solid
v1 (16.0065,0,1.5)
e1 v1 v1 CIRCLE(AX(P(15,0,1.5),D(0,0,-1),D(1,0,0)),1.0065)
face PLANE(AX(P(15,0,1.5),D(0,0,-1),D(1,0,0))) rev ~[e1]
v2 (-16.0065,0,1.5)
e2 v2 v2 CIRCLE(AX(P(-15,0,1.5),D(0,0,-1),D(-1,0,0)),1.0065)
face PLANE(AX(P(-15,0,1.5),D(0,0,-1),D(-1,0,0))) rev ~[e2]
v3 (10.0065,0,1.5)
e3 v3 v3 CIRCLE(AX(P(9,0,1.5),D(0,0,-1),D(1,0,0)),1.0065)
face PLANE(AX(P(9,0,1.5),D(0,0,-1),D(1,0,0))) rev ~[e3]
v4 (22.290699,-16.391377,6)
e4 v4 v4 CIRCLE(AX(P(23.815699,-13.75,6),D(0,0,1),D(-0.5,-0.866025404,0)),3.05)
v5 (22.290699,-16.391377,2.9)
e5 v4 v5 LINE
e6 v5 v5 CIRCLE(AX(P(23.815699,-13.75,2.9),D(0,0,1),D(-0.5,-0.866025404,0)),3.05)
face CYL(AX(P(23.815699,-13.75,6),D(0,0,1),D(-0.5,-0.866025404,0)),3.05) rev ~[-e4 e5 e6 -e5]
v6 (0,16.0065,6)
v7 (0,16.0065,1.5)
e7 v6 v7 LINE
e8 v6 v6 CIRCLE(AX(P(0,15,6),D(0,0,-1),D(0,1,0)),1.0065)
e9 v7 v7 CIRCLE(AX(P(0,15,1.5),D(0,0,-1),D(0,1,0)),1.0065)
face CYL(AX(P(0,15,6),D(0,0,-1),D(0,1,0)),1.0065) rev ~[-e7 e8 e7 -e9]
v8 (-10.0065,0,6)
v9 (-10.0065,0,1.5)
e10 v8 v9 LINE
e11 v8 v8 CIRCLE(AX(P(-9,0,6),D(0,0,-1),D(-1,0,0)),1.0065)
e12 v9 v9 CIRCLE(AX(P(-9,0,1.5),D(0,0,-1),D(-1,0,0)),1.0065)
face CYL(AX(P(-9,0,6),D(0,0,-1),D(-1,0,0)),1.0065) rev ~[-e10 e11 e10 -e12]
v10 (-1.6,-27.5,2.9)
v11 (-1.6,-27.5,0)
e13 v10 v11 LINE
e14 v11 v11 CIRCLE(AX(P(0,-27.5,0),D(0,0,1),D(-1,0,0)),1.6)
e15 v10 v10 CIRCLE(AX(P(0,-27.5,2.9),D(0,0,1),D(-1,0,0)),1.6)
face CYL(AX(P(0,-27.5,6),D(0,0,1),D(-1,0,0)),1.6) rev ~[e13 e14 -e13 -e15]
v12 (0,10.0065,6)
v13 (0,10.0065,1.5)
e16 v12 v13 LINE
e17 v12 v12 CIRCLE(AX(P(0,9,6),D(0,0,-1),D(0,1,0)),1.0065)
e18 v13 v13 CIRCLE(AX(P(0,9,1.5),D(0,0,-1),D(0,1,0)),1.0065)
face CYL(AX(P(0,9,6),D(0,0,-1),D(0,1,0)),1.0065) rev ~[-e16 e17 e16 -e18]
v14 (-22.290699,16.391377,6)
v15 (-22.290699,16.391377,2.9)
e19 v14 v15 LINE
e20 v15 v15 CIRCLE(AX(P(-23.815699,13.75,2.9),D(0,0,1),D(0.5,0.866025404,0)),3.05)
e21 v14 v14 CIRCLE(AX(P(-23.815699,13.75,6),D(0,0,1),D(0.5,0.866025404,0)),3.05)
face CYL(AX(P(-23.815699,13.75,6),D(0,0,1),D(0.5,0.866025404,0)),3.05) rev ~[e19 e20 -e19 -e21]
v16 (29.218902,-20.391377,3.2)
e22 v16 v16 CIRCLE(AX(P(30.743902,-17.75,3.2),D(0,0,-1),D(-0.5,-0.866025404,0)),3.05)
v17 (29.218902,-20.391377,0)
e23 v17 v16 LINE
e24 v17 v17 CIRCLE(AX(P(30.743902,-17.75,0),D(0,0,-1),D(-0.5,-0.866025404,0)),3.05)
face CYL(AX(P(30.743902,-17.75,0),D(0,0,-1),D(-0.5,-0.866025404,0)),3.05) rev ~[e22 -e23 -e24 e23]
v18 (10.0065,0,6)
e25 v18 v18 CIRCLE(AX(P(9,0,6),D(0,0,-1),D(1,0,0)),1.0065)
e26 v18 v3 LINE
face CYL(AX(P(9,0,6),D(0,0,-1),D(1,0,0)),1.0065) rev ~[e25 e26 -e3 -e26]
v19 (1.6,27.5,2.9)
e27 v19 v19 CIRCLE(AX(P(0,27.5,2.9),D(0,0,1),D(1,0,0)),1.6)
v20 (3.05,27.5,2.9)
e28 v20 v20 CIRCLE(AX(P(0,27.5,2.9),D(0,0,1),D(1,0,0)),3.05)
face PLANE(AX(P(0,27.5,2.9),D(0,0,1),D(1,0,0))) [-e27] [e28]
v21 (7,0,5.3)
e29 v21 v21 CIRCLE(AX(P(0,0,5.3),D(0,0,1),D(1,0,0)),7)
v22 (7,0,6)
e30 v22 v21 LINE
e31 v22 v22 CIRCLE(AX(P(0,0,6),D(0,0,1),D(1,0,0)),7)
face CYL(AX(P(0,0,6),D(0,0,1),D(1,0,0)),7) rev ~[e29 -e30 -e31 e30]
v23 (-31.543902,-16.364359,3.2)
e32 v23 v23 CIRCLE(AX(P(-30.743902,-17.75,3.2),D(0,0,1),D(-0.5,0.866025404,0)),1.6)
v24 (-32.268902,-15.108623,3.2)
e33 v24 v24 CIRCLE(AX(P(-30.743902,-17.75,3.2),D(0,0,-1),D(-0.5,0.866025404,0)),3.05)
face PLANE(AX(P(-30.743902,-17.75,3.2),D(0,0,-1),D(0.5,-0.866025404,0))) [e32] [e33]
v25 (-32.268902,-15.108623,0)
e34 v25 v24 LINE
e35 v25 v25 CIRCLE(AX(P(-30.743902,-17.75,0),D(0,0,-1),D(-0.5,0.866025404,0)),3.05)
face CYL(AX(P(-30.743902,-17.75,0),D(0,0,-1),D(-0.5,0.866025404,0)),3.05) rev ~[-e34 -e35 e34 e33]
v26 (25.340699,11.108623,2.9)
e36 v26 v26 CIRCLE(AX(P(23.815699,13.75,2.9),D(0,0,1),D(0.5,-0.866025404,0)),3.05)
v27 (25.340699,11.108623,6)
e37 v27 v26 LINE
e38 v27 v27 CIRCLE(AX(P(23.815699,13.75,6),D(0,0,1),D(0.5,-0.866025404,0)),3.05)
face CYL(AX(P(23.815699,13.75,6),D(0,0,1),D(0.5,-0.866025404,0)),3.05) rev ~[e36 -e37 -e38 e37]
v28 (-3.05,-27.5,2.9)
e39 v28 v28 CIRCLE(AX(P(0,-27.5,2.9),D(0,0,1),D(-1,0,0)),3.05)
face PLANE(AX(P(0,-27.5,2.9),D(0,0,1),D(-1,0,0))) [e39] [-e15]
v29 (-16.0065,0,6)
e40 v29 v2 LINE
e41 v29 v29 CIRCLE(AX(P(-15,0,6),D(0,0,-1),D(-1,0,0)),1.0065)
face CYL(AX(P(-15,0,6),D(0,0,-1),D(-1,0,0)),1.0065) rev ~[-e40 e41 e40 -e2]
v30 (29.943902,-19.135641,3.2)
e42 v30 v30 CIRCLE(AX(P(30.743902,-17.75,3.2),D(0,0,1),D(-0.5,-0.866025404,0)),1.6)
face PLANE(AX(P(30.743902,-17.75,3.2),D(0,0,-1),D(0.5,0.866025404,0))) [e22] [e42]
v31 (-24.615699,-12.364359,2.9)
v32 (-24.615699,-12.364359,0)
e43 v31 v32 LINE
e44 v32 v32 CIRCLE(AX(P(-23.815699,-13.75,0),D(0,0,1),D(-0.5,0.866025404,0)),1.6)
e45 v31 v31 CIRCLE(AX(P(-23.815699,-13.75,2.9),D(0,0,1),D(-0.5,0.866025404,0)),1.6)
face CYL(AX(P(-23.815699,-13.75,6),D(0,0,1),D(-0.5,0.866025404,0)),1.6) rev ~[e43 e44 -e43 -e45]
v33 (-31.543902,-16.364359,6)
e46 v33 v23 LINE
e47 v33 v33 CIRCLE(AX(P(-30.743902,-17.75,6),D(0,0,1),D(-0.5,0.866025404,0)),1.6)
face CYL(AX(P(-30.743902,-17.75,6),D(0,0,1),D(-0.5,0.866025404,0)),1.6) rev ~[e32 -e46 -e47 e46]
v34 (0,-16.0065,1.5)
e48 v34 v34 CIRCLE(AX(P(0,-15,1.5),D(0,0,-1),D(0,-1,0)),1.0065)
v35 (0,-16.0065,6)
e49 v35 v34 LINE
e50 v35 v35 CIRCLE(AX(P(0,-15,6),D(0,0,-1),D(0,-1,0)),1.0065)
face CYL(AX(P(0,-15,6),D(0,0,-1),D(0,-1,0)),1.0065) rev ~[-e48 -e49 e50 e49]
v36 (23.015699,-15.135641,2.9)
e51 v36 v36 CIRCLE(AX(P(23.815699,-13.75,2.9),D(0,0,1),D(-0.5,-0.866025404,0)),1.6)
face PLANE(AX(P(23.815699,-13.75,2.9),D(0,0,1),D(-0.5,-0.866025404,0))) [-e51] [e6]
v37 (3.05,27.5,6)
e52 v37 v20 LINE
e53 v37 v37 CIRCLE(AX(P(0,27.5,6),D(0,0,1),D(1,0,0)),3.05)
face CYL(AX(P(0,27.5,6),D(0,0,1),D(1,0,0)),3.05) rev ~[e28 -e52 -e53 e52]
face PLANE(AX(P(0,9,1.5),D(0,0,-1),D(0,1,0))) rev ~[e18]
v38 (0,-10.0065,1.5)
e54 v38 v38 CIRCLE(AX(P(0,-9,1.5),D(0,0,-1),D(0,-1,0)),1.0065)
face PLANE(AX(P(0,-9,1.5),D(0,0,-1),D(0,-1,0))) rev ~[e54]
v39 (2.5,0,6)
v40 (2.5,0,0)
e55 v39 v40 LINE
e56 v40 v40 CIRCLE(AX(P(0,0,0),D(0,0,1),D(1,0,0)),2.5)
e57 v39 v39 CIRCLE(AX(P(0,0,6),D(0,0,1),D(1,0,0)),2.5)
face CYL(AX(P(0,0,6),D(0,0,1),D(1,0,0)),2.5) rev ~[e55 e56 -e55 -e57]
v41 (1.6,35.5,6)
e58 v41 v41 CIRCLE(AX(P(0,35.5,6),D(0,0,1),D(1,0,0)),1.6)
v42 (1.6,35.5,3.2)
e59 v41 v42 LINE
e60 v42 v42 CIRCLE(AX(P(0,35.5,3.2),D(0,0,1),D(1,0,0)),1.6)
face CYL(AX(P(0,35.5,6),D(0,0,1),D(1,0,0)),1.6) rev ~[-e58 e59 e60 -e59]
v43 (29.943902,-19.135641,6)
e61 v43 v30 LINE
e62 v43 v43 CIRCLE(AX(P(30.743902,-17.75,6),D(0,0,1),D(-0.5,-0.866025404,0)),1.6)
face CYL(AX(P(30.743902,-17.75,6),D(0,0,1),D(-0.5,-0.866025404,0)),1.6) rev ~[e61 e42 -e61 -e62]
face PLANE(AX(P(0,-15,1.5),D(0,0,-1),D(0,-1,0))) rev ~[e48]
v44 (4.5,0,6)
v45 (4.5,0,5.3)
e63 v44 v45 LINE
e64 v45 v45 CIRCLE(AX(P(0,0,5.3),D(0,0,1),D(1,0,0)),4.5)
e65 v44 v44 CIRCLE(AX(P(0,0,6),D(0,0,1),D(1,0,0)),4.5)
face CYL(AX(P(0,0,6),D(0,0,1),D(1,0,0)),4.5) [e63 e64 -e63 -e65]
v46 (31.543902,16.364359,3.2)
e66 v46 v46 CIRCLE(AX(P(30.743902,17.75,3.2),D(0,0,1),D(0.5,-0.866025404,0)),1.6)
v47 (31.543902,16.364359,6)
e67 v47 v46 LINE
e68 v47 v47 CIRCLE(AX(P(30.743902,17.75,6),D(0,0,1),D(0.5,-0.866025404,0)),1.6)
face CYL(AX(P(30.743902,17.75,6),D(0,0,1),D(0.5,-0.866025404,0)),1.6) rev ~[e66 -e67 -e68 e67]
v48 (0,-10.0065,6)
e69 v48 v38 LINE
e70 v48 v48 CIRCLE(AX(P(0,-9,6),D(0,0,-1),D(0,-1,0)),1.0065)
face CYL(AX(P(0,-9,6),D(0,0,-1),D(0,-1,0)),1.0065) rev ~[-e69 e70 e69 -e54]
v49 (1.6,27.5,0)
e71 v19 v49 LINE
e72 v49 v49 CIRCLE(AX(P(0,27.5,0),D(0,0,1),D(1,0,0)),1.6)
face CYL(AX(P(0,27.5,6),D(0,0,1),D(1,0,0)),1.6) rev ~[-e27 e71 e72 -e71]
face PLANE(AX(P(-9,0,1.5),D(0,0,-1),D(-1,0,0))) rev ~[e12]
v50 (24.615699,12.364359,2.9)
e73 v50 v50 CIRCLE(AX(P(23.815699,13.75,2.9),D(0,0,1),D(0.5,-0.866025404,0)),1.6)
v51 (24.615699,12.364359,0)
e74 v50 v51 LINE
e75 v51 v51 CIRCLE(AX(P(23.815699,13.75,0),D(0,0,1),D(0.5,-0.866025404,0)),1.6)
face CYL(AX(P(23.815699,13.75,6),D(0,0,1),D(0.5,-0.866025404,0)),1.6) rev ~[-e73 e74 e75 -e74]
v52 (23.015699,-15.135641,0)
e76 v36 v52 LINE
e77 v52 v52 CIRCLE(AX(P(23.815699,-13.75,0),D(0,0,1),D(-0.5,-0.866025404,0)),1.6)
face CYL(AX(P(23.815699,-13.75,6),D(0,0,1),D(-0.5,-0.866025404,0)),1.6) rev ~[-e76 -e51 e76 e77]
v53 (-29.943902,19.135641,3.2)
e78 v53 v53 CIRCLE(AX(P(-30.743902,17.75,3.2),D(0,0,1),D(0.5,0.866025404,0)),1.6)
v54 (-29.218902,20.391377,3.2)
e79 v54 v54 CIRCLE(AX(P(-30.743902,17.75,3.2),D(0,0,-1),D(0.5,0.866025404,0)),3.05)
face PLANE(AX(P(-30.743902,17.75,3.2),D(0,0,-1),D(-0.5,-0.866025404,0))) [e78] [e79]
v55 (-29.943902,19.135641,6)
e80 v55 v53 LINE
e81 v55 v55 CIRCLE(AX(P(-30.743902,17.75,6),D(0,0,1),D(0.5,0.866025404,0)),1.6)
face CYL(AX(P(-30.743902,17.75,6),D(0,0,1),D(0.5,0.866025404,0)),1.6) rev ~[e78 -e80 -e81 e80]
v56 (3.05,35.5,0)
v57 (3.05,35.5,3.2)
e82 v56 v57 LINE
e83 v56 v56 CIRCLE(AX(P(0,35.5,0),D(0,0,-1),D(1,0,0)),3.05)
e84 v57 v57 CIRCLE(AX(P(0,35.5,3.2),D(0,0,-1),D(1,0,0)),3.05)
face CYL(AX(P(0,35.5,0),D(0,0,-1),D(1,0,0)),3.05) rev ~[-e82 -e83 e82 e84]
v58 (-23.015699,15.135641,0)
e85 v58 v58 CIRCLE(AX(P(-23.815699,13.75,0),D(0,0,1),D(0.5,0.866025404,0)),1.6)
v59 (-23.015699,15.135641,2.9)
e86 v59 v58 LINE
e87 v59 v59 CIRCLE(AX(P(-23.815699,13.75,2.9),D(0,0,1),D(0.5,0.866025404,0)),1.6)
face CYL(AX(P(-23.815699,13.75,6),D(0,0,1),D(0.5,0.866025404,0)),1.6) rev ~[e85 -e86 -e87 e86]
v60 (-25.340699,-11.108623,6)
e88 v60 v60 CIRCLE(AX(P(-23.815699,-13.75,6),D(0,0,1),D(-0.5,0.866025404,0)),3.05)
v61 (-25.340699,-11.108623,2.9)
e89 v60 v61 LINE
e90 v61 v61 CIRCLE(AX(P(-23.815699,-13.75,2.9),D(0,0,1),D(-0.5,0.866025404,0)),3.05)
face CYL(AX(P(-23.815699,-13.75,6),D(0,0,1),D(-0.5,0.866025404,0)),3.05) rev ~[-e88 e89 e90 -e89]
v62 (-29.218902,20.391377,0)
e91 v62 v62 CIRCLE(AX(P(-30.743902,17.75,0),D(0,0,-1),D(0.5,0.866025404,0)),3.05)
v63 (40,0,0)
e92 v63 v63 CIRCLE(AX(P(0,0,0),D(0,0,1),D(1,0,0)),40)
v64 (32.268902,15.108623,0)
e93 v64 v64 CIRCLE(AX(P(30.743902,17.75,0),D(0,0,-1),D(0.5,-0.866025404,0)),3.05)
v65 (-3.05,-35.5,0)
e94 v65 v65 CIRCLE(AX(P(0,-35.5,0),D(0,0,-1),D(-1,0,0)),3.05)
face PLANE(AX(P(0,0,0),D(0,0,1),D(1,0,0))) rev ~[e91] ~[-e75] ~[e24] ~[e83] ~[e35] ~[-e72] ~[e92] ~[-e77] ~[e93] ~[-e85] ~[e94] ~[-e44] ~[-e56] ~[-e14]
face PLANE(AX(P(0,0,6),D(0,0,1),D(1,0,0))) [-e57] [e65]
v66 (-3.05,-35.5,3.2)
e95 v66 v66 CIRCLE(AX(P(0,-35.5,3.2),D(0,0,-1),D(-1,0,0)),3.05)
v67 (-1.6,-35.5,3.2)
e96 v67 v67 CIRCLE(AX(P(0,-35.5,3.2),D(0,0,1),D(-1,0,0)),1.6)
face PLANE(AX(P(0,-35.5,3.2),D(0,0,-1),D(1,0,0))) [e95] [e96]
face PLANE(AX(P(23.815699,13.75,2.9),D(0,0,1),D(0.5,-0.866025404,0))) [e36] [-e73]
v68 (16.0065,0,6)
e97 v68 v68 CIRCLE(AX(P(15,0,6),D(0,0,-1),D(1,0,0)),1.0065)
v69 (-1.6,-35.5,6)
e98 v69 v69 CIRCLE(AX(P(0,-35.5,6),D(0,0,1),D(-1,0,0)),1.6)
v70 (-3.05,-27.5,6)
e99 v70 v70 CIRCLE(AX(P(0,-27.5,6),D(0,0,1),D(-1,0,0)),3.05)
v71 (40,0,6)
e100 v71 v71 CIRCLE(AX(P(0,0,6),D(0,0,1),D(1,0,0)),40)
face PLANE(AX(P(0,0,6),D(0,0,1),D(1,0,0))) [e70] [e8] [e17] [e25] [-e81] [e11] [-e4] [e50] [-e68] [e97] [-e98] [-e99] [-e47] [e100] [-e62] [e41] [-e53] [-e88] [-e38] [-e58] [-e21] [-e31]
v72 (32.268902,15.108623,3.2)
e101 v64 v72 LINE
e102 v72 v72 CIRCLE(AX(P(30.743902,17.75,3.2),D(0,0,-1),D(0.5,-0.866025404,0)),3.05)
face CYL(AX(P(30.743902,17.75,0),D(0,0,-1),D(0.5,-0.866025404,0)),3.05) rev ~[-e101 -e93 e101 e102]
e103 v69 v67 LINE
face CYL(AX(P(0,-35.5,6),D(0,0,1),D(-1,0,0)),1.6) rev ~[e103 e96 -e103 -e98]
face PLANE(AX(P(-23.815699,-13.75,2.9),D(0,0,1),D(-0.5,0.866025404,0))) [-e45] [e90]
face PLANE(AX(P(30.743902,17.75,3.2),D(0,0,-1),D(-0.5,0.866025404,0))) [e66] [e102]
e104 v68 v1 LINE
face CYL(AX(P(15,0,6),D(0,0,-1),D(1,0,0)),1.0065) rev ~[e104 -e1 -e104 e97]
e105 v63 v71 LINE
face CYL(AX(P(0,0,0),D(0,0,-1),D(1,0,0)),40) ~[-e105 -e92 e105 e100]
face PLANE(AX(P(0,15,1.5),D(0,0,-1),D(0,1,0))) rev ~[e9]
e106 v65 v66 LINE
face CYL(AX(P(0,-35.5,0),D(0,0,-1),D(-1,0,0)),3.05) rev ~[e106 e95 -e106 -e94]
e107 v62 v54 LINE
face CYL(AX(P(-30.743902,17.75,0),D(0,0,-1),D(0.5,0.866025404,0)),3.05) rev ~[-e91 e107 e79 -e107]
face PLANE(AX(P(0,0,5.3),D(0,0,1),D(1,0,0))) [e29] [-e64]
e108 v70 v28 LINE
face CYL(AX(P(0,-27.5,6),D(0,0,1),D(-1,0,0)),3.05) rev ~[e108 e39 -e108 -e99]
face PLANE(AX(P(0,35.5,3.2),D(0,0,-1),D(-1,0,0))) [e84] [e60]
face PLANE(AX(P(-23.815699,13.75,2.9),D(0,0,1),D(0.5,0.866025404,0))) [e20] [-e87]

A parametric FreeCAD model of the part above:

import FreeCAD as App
import Part
import Sketcher
from FreeCAD import Vector
Q = App.Units.Quantity

doc = App.newDocument("Part")
params = doc.addObject("Spreadsheet::Sheet", "Params")
for row, (alias, value) in enumerate([
    ("sketch1_diameter", "80 mm"),
    ("pad1_length", "6 mm"),
    ("sketch2_diameter", "3.2 mm"),
    ("sketch3_diameter", "6.1 mm"),
    ("pocket2_length", "3.2 mm"),
    ("sketch4_diameter", "6.1 mm"),
    ("pocket3_length", "3.1 mm"),
    ("sketch5_diameter", "5 mm"),
    ("sketch6_diameter", "14 mm"),
    ("sketch6_diameter2", "9 mm"),
    ("pocket5_length", "0.7 mm"),
    ("hole_diameter", "2.013 mm"),
    ("hole_depth", "4.5 mm"),
    ("hole2_diameter", "2.013 mm"),
    ("hole2_depth", "4.5 mm"),
], start=1):
    params.set(f"A{row}", alias)
    params.set(f"B{row}", "=" + value)
    params.setAlias(f"B{row}", alias)

body = doc.addObject("PartDesign::Body", "Body")

sketch1 = body.newObject("Sketcher::SketchObject", "Sketch")
sketch1.AttachmentSupport = (doc.getObject("XY_Plane"), [""])
sketch1.MapMode = "FlatFace"
sketch1.addGeometry(Part.Circle(Vector(0, 0, 0), Vector(0, 0, 1), 40), False)
sketch1.addConstraint(Sketcher.Constraint("Coincident", 0, 3, -1, 1))
sketch1.addConstraint(Sketcher.Constraint("Diameter", 0, Q("80 mm")))
sketch1.setExpression("Constraints[1]", "Params.sketch1_diameter")
pad1 = body.newObject("PartDesign::Pad", "Pad")
pad1.Profile = sketch1
pad1.setExpression("Length", "Params.pad1_length")

sketch2 = body.newObject("Sketcher::SketchObject", "Sketch001")
sketch2.AttachmentSupport = (doc.getObject("XY_Plane"), [""])
sketch2.MapMode = "FlatFace"
sketch2.AttachmentOffset = App.Placement(Vector(0, 0, 6), App.Rotation())
sketch2.addGeometry(Part.Circle(Vector(0, 27.5, 0), Vector(0, 0, 1), 1.6), False)
sketch2.addGeometry(Part.Circle(Vector(0, 35.5, 0), Vector(0, 0, 1), 1.6), False)
sketch2.addConstraint(Sketcher.Constraint("Equal", 0, 1))
sketch2.addConstraint(Sketcher.Constraint("PointOnObject", 0, 3, -2))
sketch2.addConstraint(Sketcher.Constraint("PointOnObject", 1, 3, -2))
sketch2.addConstraint(Sketcher.Constraint("Diameter", 0, Q("3.2 mm")))
sketch2.addConstraint(Sketcher.Constraint("DistanceY", 0, 3, 1, 3, Q("8 mm")))
sketch2.addConstraint(Sketcher.Constraint("DistanceY", -1, 1, 0, 3, Q("27.5 mm")))
sketch2.setExpression("Constraints[3]", "Params.sketch2_diameter")
pocket1 = body.newObject("PartDesign::Pocket", "Pocket")
pocket1.Profile = sketch2
pocket1.Type = "UpToFirst"

sketch3 = body.newObject("Sketcher::SketchObject", "Sketch002")
sketch3.AttachmentSupport = (doc.getObject("XY_Plane"), [""])
sketch3.MapMode = "FlatFace"
sketch3.addGeometry(Part.Circle(Vector(0, 35.5, 0), Vector(0, 0, 1), 3), False)
sketch3.addConstraint(Sketcher.Constraint("PointOnObject", 0, 3, -2))
sketch3.addConstraint(Sketcher.Constraint("Diameter", 0, Q("6.1 mm")))
sketch3.addConstraint(Sketcher.Constraint("DistanceY", -1, 1, 0, 3, Q("35.5 mm")))
sketch3.setExpression("Constraints[1]", "Params.sketch3_diameter")
pocket2 = body.newObject("PartDesign::Pocket", "Pocket001")
pocket2.Profile = sketch3
pocket2.setExpression("Length", "Params.pocket2_length")
pocket2.Reversed = True

sketch4 = body.newObject("Sketcher::SketchObject", "Sketch003")
sketch4.AttachmentSupport = (doc.getObject("XY_Plane"), [""])
sketch4.MapMode = "FlatFace"
sketch4.AttachmentOffset = App.Placement(Vector(0, 0, 6), App.Rotation())
sketch4.addGeometry(Part.Circle(Vector(0, 27.5, 0), Vector(0, 0, 1), 3), False)
sketch4.addConstraint(Sketcher.Constraint("PointOnObject", 0, 3, -2))
sketch4.addConstraint(Sketcher.Constraint("Diameter", 0, Q("6.1 mm")))
sketch4.addConstraint(Sketcher.Constraint("DistanceY", -1, 1, 0, 3, Q("27.5 mm")))
sketch4.setExpression("Constraints[1]", "Params.sketch4_diameter")
pocket3 = body.newObject("PartDesign::Pocket", "Pocket002")
pocket3.Profile = sketch4
pocket3.setExpression("Length", "Params.pocket3_length")
doc.recompute()

polarpattern = body.newObject("PartDesign::PolarPattern", "PolarPattern")
polarpattern.Originals = [pocket1, pocket2, pocket3]
polarpattern.Axis = (doc.getObject("Z_Axis"), [""])
polarpattern.Angle = 360
polarpattern.Occurrences = 6
body.Tip = polarpattern

sketch5 = body.newObject("Sketcher::SketchObject", "Sketch004")
sketch5.AttachmentSupport = (doc.getObject("XY_Plane"), [""])
sketch5.MapMode = "FlatFace"
sketch5.AttachmentOffset = App.Placement(Vector(0, 0, 6), App.Rotation())
sketch5.addGeometry(Part.Circle(Vector(0, 0, 0), Vector(0, 0, 1), 2.5), False)
sketch5.addConstraint(Sketcher.Constraint("Coincident", 0, 3, -1, 1))
sketch5.addConstraint(Sketcher.Constraint("Diameter", 0, Q("5 mm")))
sketch5.setExpression("Constraints[1]", "Params.sketch5_diameter")
pocket4 = body.newObject("PartDesign::Pocket", "Pocket003")
pocket4.Profile = sketch5
pocket4.Type = "UpToFirst"

sketch6 = body.newObject("Sketcher::SketchObject", "Sketch005")
sketch6.AttachmentSupport = (doc.getObject("XY_Plane"), [""])
sketch6.MapMode = "FlatFace"
sketch6.AttachmentOffset = App.Placement(Vector(0, 0, 6), App.Rotation())
sketch6.addGeometry(Part.Circle(Vector(0, 0, 0), Vector(0, 0, 1), 7), False)
sketch6.addGeometry(Part.Circle(Vector(0, 0, 0), Vector(0, 0, 1), 4.5), False)
sketch6.addConstraint(Sketcher.Constraint("Coincident", 0, 3, -1, 1))
sketch6.addConstraint(Sketcher.Constraint("Coincident", 1, 3, -1, 1))
sketch6.addConstraint(Sketcher.Constraint("Diameter", 0, Q("14 mm")))
sketch6.addConstraint(Sketcher.Constraint("Diameter", 1, Q("9 mm")))
sketch6.setExpression("Constraints[2]", "Params.sketch6_diameter")
sketch6.setExpression("Constraints[3]", "Params.sketch6_diameter2")
pocket5 = body.newObject("PartDesign::Pocket", "Pocket004")
pocket5.Profile = sketch6
pocket5.setExpression("Length", "Params.pocket5_length")

sketch7 = body.newObject("Sketcher::SketchObject", "Sketch006")
sketch7.AttachmentSupport = (doc.getObject("XY_Plane"), [""])
sketch7.MapMode = "FlatFace"
sketch7.AttachmentOffset = App.Placement(Vector(0, 0, 6), App.Rotation())
sketch7.addGeometry(Part.Circle(Vector(0, -9, 0), Vector(0, 0, 1), 1), False)
sketch7.addConstraint(Sketcher.Constraint("PointOnObject", 0, 3, -2))
sketch7.addConstraint(Sketcher.Constraint("Diameter", 0, Q("2.013 mm")))
sketch7.addConstraint(Sketcher.Constraint("DistanceY", 0, 3, -1, 1, Q("9 mm")))
doc.recompute()
hole = body.newObject("PartDesign::Hole", "Hole")
hole.Profile = sketch7
hole.ThreadType = "None"
hole.setExpression("Diameter", "Params.hole_diameter")
hole.DepthType = "Dimension"
hole.setExpression("Depth", "Params.hole_depth")
hole.DrillPoint = "Flat"

sketch8 = body.newObject("Sketcher::SketchObject", "Sketch007")
sketch8.AttachmentSupport = (doc.getObject("XY_Plane"), [""])
sketch8.MapMode = "FlatFace"
sketch8.AttachmentOffset = App.Placement(Vector(0, 0, 6), App.Rotation())
sketch8.addGeometry(Part.Circle(Vector(0, -15, 0), Vector(0, 0, 1), 1), False)
sketch8.addConstraint(Sketcher.Constraint("PointOnObject", 0, 3, -2))
sketch8.addConstraint(Sketcher.Constraint("Diameter", 0, Q("2.013 mm")))
sketch8.addConstraint(Sketcher.Constraint("DistanceY", 0, 3, -1, 1, Q("15 mm")))
doc.recompute()
hole2 = body.newObject("PartDesign::Hole", "Hole001")
hole2.Profile = sketch8
hole2.ThreadType = "None"
hole2.setExpression("Diameter", "Params.hole2_diameter")
hole2.DepthType = "Dimension"
hole2.setExpression("Depth", "Params.hole2_depth")
hole2.DrillPoint = "Flat"
doc.recompute()

polarpattern2 = body.newObject("PartDesign::PolarPattern", "PolarPattern001")
polarpattern2.Originals = [hole, hole2]
polarpattern2.Axis = (doc.getObject("Z_Axis"), [""])
polarpattern2.Angle = 360
polarpattern2.Occurrences = 4
body.Tip = polarpattern2

doc.recompute()
